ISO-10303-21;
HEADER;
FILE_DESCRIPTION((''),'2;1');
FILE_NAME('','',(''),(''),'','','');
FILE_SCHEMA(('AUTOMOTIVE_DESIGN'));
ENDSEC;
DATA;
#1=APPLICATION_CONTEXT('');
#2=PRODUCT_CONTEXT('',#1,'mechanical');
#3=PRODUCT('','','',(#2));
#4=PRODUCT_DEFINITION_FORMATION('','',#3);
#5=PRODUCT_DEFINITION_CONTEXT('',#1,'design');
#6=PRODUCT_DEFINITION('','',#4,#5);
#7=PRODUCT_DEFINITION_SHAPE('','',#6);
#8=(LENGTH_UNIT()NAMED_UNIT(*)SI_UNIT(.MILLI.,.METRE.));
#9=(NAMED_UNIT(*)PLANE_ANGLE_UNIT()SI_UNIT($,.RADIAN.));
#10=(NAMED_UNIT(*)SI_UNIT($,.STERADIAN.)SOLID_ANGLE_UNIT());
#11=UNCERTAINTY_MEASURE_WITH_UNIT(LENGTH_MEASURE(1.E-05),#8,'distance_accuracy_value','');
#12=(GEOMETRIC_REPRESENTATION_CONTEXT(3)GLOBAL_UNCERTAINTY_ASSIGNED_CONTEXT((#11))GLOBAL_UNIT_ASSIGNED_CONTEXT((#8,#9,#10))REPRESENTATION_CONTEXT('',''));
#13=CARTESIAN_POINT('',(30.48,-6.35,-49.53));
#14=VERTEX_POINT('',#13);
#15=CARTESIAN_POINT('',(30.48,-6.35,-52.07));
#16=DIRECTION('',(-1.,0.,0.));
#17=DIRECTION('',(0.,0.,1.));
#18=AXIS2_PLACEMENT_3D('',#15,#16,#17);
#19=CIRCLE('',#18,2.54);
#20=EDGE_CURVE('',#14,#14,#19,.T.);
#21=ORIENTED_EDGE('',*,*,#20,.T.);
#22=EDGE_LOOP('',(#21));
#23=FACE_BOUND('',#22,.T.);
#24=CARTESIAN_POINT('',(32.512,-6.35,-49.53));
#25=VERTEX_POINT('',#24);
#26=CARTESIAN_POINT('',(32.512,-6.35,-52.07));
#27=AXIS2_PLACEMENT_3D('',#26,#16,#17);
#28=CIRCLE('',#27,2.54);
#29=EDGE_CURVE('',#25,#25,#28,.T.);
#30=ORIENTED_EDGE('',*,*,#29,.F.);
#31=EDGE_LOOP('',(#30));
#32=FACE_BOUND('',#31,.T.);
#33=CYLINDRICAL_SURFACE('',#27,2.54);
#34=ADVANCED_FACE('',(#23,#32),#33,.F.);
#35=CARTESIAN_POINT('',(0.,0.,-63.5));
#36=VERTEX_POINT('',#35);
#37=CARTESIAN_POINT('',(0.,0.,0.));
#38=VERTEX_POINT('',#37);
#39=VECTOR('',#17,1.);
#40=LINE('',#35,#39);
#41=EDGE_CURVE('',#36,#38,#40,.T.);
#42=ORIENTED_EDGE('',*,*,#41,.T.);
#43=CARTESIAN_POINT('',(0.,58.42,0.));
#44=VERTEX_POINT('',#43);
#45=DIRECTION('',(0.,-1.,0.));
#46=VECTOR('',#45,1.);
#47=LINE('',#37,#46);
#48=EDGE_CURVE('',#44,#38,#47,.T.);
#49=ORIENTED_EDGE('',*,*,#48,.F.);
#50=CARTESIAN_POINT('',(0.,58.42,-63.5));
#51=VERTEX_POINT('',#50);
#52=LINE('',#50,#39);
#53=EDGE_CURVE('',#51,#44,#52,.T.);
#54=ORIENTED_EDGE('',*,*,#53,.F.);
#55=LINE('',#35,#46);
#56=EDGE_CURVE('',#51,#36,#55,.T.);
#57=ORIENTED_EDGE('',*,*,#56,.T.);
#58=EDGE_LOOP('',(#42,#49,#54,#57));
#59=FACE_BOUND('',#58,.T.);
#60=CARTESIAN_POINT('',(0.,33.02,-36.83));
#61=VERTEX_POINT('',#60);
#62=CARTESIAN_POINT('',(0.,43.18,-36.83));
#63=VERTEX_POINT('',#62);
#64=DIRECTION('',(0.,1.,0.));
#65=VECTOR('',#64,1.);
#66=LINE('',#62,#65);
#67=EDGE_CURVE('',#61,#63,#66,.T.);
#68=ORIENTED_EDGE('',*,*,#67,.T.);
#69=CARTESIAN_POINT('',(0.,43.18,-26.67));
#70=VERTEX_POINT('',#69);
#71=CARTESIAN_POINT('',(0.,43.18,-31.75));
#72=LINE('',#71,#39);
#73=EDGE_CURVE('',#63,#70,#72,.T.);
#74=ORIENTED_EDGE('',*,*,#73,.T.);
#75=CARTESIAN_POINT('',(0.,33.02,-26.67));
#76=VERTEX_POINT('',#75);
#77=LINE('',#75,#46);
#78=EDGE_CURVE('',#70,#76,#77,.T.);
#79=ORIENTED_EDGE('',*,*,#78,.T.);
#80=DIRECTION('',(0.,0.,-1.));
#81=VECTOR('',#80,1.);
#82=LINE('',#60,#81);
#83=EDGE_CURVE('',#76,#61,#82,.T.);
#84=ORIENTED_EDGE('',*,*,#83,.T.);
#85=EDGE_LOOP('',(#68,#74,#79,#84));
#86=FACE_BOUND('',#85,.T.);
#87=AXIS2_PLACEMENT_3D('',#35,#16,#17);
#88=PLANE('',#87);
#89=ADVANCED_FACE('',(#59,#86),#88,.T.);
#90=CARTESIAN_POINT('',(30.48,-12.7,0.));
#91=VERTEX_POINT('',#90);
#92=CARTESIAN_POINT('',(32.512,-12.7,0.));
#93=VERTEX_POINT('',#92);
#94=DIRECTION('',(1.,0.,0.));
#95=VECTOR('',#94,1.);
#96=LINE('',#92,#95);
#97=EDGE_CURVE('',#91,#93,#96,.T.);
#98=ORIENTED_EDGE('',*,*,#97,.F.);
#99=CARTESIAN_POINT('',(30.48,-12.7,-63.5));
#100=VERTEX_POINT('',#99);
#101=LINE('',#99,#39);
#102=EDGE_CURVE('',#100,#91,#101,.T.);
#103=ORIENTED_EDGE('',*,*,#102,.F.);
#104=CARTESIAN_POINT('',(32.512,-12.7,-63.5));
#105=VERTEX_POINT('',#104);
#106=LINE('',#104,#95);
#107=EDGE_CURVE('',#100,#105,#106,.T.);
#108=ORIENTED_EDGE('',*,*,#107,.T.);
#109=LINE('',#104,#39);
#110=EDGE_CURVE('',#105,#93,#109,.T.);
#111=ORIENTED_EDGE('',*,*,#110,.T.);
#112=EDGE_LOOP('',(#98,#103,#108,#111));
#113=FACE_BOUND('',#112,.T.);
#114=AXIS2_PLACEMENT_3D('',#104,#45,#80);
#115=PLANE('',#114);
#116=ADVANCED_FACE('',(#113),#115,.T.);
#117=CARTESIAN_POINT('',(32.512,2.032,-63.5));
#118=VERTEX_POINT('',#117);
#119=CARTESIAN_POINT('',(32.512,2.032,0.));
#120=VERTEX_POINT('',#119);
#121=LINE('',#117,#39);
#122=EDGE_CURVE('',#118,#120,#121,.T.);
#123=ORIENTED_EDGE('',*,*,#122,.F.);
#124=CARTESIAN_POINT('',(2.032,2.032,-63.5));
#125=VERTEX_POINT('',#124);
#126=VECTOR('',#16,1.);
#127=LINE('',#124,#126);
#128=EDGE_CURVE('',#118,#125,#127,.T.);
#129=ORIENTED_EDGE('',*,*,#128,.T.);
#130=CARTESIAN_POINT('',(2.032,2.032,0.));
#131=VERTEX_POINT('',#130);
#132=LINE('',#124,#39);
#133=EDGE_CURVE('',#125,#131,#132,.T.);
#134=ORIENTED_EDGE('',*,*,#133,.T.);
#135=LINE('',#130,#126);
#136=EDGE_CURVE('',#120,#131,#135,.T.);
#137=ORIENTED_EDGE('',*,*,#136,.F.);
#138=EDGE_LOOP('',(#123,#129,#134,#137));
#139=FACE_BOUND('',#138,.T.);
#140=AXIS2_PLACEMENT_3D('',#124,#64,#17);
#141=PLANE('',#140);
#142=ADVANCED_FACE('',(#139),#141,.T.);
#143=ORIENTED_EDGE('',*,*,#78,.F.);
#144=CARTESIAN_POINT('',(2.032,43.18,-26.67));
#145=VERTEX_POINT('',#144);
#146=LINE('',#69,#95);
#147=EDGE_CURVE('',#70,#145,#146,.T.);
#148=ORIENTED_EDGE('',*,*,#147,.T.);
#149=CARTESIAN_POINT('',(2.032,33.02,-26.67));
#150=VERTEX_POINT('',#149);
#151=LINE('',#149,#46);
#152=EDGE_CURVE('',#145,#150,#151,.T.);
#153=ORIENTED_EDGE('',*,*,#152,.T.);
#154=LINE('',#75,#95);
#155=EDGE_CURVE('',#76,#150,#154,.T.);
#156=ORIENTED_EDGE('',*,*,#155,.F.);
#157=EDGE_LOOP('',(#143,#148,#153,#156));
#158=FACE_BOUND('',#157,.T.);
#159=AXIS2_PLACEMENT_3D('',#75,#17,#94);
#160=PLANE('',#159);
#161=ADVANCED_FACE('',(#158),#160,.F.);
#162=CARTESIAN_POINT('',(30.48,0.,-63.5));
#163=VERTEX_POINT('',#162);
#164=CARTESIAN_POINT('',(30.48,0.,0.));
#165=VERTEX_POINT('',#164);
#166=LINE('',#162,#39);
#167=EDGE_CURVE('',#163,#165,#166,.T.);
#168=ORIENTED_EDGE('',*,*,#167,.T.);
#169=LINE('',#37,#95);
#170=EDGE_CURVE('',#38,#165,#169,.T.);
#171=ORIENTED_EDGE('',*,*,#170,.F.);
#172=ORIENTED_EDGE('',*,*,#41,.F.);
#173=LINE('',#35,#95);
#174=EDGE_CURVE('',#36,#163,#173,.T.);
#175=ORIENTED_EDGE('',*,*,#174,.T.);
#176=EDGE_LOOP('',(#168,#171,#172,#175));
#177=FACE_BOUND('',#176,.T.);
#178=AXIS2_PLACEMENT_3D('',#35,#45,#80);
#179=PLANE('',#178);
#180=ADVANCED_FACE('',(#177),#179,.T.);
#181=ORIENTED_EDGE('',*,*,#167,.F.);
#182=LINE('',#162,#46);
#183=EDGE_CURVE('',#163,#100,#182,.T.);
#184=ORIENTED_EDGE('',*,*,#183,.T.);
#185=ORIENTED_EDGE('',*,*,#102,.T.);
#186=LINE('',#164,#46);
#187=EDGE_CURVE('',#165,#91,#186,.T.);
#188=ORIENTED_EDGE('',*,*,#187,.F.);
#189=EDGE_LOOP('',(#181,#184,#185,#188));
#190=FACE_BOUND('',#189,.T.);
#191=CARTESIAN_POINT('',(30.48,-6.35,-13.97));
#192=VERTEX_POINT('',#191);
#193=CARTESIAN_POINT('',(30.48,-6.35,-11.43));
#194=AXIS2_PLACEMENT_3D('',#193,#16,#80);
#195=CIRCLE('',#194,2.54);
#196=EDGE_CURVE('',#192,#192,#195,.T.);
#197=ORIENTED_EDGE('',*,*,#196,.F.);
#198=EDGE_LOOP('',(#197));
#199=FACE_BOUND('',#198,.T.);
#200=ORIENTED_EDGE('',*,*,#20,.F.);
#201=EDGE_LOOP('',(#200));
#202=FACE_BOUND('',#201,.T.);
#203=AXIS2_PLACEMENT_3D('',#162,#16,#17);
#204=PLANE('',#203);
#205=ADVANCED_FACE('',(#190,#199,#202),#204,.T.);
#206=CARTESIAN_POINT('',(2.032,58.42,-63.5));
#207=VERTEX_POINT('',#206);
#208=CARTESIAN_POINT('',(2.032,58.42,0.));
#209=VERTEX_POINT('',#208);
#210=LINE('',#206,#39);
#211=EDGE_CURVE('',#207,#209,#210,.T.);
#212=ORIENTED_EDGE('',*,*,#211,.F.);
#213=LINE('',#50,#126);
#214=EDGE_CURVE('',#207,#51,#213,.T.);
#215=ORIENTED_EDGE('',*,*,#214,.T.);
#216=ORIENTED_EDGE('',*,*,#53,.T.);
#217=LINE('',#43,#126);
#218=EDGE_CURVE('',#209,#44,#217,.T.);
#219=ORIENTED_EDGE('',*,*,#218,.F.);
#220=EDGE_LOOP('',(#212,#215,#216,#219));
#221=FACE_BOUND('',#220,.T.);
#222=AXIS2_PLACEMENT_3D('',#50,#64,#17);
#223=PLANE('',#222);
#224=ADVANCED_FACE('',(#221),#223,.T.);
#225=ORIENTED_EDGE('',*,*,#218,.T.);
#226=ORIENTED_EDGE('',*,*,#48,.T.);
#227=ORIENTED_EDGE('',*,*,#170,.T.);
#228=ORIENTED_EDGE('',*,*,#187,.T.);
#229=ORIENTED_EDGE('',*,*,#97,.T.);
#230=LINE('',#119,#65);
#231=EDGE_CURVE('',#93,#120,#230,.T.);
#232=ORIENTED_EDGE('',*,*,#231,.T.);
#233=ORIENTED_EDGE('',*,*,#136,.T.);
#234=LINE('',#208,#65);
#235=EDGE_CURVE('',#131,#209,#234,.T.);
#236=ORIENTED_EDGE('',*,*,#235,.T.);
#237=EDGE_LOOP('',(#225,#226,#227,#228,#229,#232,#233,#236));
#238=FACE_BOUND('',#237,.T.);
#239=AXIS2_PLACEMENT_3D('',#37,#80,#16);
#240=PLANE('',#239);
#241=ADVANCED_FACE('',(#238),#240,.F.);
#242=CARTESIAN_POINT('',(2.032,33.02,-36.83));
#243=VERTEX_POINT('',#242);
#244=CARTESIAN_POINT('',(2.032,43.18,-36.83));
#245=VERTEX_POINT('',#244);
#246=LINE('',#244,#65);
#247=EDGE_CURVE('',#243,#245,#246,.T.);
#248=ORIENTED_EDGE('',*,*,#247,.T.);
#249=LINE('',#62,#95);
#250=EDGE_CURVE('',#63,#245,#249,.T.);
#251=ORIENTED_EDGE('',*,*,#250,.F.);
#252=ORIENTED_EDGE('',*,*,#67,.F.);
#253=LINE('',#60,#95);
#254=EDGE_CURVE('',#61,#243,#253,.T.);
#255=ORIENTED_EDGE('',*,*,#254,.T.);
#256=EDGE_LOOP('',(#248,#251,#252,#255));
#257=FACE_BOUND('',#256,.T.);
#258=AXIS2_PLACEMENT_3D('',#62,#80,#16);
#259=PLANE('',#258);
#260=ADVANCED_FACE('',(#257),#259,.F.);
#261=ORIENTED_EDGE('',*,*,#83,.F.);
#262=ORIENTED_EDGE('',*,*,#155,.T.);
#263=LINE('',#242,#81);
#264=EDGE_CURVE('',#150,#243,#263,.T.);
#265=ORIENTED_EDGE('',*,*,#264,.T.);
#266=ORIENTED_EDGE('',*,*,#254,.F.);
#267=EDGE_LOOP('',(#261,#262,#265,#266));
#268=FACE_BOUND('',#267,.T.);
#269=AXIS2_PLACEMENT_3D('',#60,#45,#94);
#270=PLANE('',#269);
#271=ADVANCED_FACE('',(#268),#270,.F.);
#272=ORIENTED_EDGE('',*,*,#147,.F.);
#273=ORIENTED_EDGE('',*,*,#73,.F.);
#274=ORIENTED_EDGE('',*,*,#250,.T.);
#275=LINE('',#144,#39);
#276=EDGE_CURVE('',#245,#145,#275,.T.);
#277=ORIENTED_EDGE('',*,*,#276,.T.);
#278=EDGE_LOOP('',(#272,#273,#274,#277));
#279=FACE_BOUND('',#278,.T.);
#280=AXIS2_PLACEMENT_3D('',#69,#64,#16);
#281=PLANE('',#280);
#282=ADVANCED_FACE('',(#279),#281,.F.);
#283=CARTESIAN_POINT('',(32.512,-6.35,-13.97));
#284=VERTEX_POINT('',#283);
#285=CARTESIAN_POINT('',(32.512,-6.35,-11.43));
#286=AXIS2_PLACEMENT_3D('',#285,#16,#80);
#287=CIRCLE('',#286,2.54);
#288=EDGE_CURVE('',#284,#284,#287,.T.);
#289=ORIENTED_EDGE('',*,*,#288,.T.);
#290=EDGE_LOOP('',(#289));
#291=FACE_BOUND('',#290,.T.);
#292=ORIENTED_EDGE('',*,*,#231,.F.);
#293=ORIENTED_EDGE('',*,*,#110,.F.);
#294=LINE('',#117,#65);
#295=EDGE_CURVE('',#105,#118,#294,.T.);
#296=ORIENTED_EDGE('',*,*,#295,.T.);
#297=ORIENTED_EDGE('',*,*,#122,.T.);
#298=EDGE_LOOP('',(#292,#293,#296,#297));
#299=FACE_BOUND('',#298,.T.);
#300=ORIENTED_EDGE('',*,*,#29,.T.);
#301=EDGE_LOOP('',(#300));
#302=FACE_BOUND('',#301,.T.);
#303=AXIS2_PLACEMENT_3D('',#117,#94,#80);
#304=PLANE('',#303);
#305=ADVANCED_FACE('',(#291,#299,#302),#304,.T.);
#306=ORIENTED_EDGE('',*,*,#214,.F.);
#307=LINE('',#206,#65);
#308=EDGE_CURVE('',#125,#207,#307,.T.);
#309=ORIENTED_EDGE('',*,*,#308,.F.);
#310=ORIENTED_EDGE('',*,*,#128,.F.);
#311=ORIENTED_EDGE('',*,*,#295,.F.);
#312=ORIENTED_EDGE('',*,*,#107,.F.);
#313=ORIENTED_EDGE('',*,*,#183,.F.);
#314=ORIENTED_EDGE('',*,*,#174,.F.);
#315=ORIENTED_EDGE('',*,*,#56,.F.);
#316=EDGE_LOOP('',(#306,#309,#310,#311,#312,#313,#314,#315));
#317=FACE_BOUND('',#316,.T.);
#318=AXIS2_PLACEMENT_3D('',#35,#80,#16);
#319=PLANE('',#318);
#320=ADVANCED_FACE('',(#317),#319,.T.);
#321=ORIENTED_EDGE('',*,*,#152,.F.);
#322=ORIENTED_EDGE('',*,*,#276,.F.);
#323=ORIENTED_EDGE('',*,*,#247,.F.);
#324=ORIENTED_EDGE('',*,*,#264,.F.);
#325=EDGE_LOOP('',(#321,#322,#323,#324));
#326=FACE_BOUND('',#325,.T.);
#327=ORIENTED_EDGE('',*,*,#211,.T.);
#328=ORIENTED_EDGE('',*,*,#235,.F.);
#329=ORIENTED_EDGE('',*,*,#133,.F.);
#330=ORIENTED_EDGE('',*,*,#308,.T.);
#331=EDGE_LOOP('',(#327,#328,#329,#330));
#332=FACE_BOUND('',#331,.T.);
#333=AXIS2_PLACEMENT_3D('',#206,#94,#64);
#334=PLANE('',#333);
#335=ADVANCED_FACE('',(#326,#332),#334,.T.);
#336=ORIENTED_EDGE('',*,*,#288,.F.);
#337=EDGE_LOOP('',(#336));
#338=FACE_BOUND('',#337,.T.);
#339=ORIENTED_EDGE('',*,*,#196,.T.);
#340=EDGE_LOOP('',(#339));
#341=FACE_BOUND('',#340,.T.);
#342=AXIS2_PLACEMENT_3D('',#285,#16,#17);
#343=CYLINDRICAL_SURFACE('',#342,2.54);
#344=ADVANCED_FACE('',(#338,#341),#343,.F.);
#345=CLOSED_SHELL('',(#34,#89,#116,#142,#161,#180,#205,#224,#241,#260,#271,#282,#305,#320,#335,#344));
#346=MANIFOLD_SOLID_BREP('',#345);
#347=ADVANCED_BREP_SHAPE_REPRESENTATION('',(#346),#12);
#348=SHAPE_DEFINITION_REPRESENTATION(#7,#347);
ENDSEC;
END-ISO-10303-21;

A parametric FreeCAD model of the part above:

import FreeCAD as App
import Part
import Sketcher

V = App.Vector
Q = App.Units.Quantity

doc = App.newDocument("Part")
body = doc.addObject("PartDesign::Body", "Body")

# Sketch on XY plane
sketch1 = body.newObject("Sketcher::SketchObject", "Sketch")
sketch1.AttachmentSupport = (doc.getObject("XY_Plane"), [""])
sketch1.MapMode = "FlatFace"
sketch1.addGeometry(Part.LineSegment(V(0, 0, 0), V(30.5, 0, 0)), False)
sketch1.addGeometry(Part.LineSegment(V(30.5, 0, 0), V(30.5, -12.7, 0)), False)
sketch1.addGeometry(Part.LineSegment(V(30.5, -12.7, 0), V(32.5, -12.7, 0)), False)
sketch1.addGeometry(Part.LineSegment(V(32.5, -12.7, 0), V(32.5, 2, 0)), False)
sketch1.addGeometry(Part.LineSegment(V(32.5, 2, 0), V(2, 2, 0)), False)
sketch1.addGeometry(Part.LineSegment(V(2, 2, 0), V(2, 58.4, 0)), False)
sketch1.addGeometry(Part.LineSegment(V(2, 58.4, 0), V(0, 58.4, 0)), False)
sketch1.addGeometry(Part.LineSegment(V(0, 58.4, 0), V(0, 0, 0)), False)
sketch1.addConstraint(Sketcher.Constraint("Coincident", 0, 2, 1, 1))
sketch1.addConstraint(Sketcher.Constraint("Coincident", 1, 2, 2, 1))
sketch1.addConstraint(Sketcher.Constraint("Coincident", 2, 2, 3, 1))
sketch1.addConstraint(Sketcher.Constraint("Coincident", 3, 2, 4, 1))
sketch1.addConstraint(Sketcher.Constraint("Coincident", 4, 2, 5, 1))
sketch1.addConstraint(Sketcher.Constraint("Coincident", 5, 2, 6, 1))
sketch1.addConstraint(Sketcher.Constraint("Coincident", 6, 2, 7, 1))
sketch1.addConstraint(Sketcher.Constraint("Coincident", 7, 2, 0, 1))
sketch1.addConstraint(Sketcher.Constraint("Horizontal", 0))
sketch1.addConstraint(Sketcher.Constraint("Vertical", 1))
sketch1.addConstraint(Sketcher.Constraint("Horizontal", 2))
sketch1.addConstraint(Sketcher.Constraint("Vertical", 3))
sketch1.addConstraint(Sketcher.Constraint("Horizontal", 4))
sketch1.addConstraint(Sketcher.Constraint("Vertical", 5))
sketch1.addConstraint(Sketcher.Constraint("Horizontal", 6))
sketch1.addConstraint(Sketcher.Constraint("Vertical", 7))
sketch1.addConstraint(Sketcher.Constraint("Coincident", 7, 2, -1, 1))
sketch1.addConstraint(Sketcher.Constraint("Equal", 0, 4))
sketch1.addConstraint(Sketcher.Constraint("DistanceX", 0, 1, 0, 2, Q("1.2 in")))
sketch1.addConstraint(Sketcher.Constraint("DistanceY", 1, 2, 1, 1, Q("0.5 in")))
sketch1.addConstraint(Sketcher.Constraint("DistanceY", 7, 2, 7, 1, Q("2.3 in")))
sketch1.addConstraint(Sketcher.Constraint("DistanceX", 2, 1, 2, 2, Q("0.08 in")))
sketch1.addConstraint(Sketcher.Constraint("DistanceY", 3, 1, 3, 2, Q("0.58 in")))
pad1 = body.newObject("PartDesign::Pad", "Pad")
pad1.Profile = sketch1
pad1.Length = Q("2.5 in")
pad1.Reversed = True

# Sketch on YZ plane
sketch2 = body.newObject("Sketcher::SketchObject", "Sketch001")
sketch2.AttachmentSupport = (doc.getObject("YZ_Plane"), [""])
sketch2.MapMode = "FlatFace"
sketch2.AttachmentOffset = App.Placement(V(0, 0, 0.08 * 25.4), App.Rotation())
sketch2.addGeometry(Part.LineSegment(V(43, -37, 0), V(43, -27, 0)), False)
sketch2.addGeometry(Part.LineSegment(V(43, -27, 0), V(33, -27, 0)), False)
sketch2.addGeometry(Part.LineSegment(V(33, -27, 0), V(33, -37, 0)), False)
sketch2.addGeometry(Part.LineSegment(V(33, -37, 0), V(43, -37, 0)), False)
sketch2.addConstraint(Sketcher.Constraint("Coincident", 0, 2, 1, 1))
sketch2.addConstraint(Sketcher.Constraint("Coincident", 1, 2, 2, 1))
sketch2.addConstraint(Sketcher.Constraint("Coincident", 2, 2, 3, 1))
sketch2.addConstraint(Sketcher.Constraint("Coincident", 3, 2, 0, 1))
sketch2.addConstraint(Sketcher.Constraint("Vertical", 0))
sketch2.addConstraint(Sketcher.Constraint("Horizontal", 1))
sketch2.addConstraint(Sketcher.Constraint("Vertical", 2))
sketch2.addConstraint(Sketcher.Constraint("Horizontal", 3))
sketch2.addConstraint(Sketcher.Constraint("Equal", 3, 0))
sketch2.addConstraint(Sketcher.Constraint("DistanceX", 1, 2, 1, 1, Q("0.4 in")))
sketch2.addConstraint(Sketcher.Constraint("DistanceX", -1, 1, 0, 2, Q("1.7 in")))
sketch2.addConstraint(Sketcher.Constraint("DistanceY", 0, 2, -1, 1, Q("1.05 in")))
pocket1 = body.newObject("PartDesign::Pocket", "Pocket")
pocket1.Profile = sketch2
pocket1.Type = "ThroughAll"

# Sketch on YZ plane
sketch3 = body.newObject("Sketcher::SketchObject", "Sketch002")
sketch3.AttachmentSupport = (doc.getObject("YZ_Plane"), [""])
sketch3.MapMode = "FlatFace"
sketch3.AttachmentOffset = App.Placement(V(0, 0, 1.2 * 25.4), App.Rotation())
sketch3.addGeometry(Part.Circle(V(-6.3, -52.1, 0), V(0, 0, 1), 2.5), False)
sketch3.addGeometry(Part.Circle(V(-6.3, -11.4, 0), V(0, 0, 1), 2.5), False)
sketch3.addConstraint(Sketcher.Constraint("Equal", 0, 1))
sketch3.addConstraint(Sketcher.Constraint("Vertical", 0, 3, 1, 3))
sketch3.addConstraint(Sketcher.Constraint("Diameter", 0, Q("0.2 in")))
sketch3.addConstraint(Sketcher.Constraint("DistanceY", 0, 3, 1, 3, Q("1.6 in")))
sketch3.addConstraint(Sketcher.Constraint("DistanceX", 0, 3, -1, 1, Q("0.25 in")))
sketch3.addConstraint(Sketcher.Constraint("DistanceY", 0, 3, -1, 1, Q("2.05 in")))
pocket2 = body.newObject("PartDesign::Pocket", "Pocket001")
pocket2.Profile = sketch3
pocket2.Type = "ThroughAll"
pocket2.Reversed = True

doc.recompute()
